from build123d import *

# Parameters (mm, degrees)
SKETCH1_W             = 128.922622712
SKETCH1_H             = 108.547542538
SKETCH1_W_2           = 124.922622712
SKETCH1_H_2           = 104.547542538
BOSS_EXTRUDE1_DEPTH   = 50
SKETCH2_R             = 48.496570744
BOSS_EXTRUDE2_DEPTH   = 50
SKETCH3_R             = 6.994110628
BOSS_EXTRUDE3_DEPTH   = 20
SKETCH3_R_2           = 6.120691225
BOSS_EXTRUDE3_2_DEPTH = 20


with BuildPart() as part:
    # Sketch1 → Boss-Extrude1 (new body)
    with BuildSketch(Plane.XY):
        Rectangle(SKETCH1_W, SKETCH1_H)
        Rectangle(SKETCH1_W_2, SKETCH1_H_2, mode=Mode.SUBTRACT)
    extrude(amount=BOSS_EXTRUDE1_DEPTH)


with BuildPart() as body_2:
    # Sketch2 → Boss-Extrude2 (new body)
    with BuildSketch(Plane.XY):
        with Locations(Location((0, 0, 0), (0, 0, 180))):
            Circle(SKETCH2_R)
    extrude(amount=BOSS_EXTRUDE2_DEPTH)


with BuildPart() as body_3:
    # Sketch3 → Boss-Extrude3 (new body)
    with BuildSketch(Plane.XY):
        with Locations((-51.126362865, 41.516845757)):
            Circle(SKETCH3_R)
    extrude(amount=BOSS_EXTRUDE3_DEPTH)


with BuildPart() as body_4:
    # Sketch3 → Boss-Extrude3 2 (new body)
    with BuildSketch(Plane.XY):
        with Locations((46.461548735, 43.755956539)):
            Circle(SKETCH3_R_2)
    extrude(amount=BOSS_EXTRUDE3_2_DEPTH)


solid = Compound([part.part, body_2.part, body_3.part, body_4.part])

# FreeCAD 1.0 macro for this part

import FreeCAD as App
import Part
import Sketcher

V = App.Vector


def add_polygon(sketch, points):
    """Adds a closed chain of lines whose ends are joined by coincident constraints."""
    first, n = sketch.GeometryCount, len(points)
    for a, b in zip(points, points[1:] + points[:1]):
        sketch.addGeometry(Part.LineSegment(App.Vector(*a, 0), App.Vector(*b, 0)), False)
    for i in range(n):
        sketch.addConstraint(Sketcher.Constraint("Coincident", first + i, 2, first + (i + 1) % n, 1))

doc = App.newDocument("Part")
body = doc.addObject("PartDesign::Body", "Body")

sketch1 = doc.addObject("Sketcher::SketchObject", "Sketch")
body.addObject(sketch1)
sketch1.AttachmentSupport = (doc.XY_Plane, [""])
sketch1.MapMode = "FlatFace"
add_polygon(sketch1, [(-64, 54), (-64, -54), (64, -54), (64, 54)])
add_polygon(sketch1, [(62, -52), (-62, -52), (-62, 52), (62, 52)])
sketch1.addConstraint([
    Sketcher.Constraint("Vertical", 0),
    Sketcher.Constraint("Horizontal", 1),
    Sketcher.Constraint("Vertical", 2),
    Sketcher.Constraint("Horizontal", 3),
    Sketcher.Constraint("Horizontal", 4),
    Sketcher.Constraint("Vertical", 5),
    Sketcher.Constraint("Horizontal", 6),
    Sketcher.Constraint("Vertical", 7),
    Sketcher.Constraint("Symmetric", 0, 2, 2, 2, -1, 1),
    Sketcher.Constraint("Symmetric", 4, 2, 6, 2, -1, 1),
    Sketcher.Constraint("DistanceX", 0, 2, 4, 2, 2.0),
    Sketcher.Constraint("DistanceY", 0, 2, 4, 2, 2.0),
    Sketcher.Constraint("DistanceX", 1, 1, 1, 2, 128.922623),
    Sketcher.Constraint("DistanceY", 0, 2, 0, 1, 108.547543),
])
pad1 = doc.addObject("PartDesign::Pad", "Pad")
body.addObject(pad1)
pad1.Profile = sketch1
pad1.Length = 50
body2 = doc.addObject("PartDesign::Body", "Body001")

sketch2 = doc.addObject("Sketcher::SketchObject", "Sketch001")
body2.addObject(sketch2)
sketch2.AttachmentSupport = (doc.getObject("XY_Plane001"), [""])
sketch2.MapMode = "FlatFace"
sketch2.addGeometry(Part.Circle(V(0, 0, 0), V(0, 0, 1), 48), False)
sketch2.addConstraint([
    Sketcher.Constraint("Coincident", 0, 3, -1, 1),
    Sketcher.Constraint("Diameter", 0, 96.993141),
])
pad2 = doc.addObject("PartDesign::Pad", "Pad001")
body2.addObject(pad2)
pad2.Profile = sketch2
pad2.Length = 50
body3 = doc.addObject("PartDesign::Body", "Body002")

sketch3 = doc.addObject("Sketcher::SketchObject", "Sketch002")
body3.addObject(sketch3)
sketch3.AttachmentSupport = (doc.getObject("XY_Plane002"), [""])
sketch3.MapMode = "FlatFace"
sketch3.addGeometry(Part.Circle(V(-51, 42, 0), V(0, 0, 1), 7), False)
sketch3.addConstraint([
    Sketcher.Constraint("Diameter", 0, 13.988221),
    Sketcher.Constraint("DistanceX", 0, 3, -1, 1, 51.126363),
    Sketcher.Constraint("DistanceY", -1, 1, 0, 3, 41.516846),
])
pad3 = doc.addObject("PartDesign::Pad", "Pad002")
body3.addObject(pad3)
pad3.Profile = sketch3
pad3.Length = 20
body4 = doc.addObject("PartDesign::Body", "Body003")

sketch4 = doc.addObject("Sketcher::SketchObject", "Sketch003")
body4.addObject(sketch4)
sketch4.AttachmentSupport = (doc.getObject("XY_Plane003"), [""])
sketch4.MapMode = "FlatFace"
sketch4.addGeometry(Part.Circle(V(46, 44, 0), V(0, 0, 1), 6), False)
sketch4.addConstraint([
    Sketcher.Constraint("Diameter", 0, 12.241382),
    Sketcher.Constraint("DistanceX", -1, 1, 0, 3, 46.461549),
    Sketcher.Constraint("DistanceY", -1, 1, 0, 3, 43.755957),
])
pad4 = doc.addObject("PartDesign::Pad", "Pad003")
body4.addObject(pad4)
pad4.Profile = sketch4
pad4.Length = 20

doc.recompute()
